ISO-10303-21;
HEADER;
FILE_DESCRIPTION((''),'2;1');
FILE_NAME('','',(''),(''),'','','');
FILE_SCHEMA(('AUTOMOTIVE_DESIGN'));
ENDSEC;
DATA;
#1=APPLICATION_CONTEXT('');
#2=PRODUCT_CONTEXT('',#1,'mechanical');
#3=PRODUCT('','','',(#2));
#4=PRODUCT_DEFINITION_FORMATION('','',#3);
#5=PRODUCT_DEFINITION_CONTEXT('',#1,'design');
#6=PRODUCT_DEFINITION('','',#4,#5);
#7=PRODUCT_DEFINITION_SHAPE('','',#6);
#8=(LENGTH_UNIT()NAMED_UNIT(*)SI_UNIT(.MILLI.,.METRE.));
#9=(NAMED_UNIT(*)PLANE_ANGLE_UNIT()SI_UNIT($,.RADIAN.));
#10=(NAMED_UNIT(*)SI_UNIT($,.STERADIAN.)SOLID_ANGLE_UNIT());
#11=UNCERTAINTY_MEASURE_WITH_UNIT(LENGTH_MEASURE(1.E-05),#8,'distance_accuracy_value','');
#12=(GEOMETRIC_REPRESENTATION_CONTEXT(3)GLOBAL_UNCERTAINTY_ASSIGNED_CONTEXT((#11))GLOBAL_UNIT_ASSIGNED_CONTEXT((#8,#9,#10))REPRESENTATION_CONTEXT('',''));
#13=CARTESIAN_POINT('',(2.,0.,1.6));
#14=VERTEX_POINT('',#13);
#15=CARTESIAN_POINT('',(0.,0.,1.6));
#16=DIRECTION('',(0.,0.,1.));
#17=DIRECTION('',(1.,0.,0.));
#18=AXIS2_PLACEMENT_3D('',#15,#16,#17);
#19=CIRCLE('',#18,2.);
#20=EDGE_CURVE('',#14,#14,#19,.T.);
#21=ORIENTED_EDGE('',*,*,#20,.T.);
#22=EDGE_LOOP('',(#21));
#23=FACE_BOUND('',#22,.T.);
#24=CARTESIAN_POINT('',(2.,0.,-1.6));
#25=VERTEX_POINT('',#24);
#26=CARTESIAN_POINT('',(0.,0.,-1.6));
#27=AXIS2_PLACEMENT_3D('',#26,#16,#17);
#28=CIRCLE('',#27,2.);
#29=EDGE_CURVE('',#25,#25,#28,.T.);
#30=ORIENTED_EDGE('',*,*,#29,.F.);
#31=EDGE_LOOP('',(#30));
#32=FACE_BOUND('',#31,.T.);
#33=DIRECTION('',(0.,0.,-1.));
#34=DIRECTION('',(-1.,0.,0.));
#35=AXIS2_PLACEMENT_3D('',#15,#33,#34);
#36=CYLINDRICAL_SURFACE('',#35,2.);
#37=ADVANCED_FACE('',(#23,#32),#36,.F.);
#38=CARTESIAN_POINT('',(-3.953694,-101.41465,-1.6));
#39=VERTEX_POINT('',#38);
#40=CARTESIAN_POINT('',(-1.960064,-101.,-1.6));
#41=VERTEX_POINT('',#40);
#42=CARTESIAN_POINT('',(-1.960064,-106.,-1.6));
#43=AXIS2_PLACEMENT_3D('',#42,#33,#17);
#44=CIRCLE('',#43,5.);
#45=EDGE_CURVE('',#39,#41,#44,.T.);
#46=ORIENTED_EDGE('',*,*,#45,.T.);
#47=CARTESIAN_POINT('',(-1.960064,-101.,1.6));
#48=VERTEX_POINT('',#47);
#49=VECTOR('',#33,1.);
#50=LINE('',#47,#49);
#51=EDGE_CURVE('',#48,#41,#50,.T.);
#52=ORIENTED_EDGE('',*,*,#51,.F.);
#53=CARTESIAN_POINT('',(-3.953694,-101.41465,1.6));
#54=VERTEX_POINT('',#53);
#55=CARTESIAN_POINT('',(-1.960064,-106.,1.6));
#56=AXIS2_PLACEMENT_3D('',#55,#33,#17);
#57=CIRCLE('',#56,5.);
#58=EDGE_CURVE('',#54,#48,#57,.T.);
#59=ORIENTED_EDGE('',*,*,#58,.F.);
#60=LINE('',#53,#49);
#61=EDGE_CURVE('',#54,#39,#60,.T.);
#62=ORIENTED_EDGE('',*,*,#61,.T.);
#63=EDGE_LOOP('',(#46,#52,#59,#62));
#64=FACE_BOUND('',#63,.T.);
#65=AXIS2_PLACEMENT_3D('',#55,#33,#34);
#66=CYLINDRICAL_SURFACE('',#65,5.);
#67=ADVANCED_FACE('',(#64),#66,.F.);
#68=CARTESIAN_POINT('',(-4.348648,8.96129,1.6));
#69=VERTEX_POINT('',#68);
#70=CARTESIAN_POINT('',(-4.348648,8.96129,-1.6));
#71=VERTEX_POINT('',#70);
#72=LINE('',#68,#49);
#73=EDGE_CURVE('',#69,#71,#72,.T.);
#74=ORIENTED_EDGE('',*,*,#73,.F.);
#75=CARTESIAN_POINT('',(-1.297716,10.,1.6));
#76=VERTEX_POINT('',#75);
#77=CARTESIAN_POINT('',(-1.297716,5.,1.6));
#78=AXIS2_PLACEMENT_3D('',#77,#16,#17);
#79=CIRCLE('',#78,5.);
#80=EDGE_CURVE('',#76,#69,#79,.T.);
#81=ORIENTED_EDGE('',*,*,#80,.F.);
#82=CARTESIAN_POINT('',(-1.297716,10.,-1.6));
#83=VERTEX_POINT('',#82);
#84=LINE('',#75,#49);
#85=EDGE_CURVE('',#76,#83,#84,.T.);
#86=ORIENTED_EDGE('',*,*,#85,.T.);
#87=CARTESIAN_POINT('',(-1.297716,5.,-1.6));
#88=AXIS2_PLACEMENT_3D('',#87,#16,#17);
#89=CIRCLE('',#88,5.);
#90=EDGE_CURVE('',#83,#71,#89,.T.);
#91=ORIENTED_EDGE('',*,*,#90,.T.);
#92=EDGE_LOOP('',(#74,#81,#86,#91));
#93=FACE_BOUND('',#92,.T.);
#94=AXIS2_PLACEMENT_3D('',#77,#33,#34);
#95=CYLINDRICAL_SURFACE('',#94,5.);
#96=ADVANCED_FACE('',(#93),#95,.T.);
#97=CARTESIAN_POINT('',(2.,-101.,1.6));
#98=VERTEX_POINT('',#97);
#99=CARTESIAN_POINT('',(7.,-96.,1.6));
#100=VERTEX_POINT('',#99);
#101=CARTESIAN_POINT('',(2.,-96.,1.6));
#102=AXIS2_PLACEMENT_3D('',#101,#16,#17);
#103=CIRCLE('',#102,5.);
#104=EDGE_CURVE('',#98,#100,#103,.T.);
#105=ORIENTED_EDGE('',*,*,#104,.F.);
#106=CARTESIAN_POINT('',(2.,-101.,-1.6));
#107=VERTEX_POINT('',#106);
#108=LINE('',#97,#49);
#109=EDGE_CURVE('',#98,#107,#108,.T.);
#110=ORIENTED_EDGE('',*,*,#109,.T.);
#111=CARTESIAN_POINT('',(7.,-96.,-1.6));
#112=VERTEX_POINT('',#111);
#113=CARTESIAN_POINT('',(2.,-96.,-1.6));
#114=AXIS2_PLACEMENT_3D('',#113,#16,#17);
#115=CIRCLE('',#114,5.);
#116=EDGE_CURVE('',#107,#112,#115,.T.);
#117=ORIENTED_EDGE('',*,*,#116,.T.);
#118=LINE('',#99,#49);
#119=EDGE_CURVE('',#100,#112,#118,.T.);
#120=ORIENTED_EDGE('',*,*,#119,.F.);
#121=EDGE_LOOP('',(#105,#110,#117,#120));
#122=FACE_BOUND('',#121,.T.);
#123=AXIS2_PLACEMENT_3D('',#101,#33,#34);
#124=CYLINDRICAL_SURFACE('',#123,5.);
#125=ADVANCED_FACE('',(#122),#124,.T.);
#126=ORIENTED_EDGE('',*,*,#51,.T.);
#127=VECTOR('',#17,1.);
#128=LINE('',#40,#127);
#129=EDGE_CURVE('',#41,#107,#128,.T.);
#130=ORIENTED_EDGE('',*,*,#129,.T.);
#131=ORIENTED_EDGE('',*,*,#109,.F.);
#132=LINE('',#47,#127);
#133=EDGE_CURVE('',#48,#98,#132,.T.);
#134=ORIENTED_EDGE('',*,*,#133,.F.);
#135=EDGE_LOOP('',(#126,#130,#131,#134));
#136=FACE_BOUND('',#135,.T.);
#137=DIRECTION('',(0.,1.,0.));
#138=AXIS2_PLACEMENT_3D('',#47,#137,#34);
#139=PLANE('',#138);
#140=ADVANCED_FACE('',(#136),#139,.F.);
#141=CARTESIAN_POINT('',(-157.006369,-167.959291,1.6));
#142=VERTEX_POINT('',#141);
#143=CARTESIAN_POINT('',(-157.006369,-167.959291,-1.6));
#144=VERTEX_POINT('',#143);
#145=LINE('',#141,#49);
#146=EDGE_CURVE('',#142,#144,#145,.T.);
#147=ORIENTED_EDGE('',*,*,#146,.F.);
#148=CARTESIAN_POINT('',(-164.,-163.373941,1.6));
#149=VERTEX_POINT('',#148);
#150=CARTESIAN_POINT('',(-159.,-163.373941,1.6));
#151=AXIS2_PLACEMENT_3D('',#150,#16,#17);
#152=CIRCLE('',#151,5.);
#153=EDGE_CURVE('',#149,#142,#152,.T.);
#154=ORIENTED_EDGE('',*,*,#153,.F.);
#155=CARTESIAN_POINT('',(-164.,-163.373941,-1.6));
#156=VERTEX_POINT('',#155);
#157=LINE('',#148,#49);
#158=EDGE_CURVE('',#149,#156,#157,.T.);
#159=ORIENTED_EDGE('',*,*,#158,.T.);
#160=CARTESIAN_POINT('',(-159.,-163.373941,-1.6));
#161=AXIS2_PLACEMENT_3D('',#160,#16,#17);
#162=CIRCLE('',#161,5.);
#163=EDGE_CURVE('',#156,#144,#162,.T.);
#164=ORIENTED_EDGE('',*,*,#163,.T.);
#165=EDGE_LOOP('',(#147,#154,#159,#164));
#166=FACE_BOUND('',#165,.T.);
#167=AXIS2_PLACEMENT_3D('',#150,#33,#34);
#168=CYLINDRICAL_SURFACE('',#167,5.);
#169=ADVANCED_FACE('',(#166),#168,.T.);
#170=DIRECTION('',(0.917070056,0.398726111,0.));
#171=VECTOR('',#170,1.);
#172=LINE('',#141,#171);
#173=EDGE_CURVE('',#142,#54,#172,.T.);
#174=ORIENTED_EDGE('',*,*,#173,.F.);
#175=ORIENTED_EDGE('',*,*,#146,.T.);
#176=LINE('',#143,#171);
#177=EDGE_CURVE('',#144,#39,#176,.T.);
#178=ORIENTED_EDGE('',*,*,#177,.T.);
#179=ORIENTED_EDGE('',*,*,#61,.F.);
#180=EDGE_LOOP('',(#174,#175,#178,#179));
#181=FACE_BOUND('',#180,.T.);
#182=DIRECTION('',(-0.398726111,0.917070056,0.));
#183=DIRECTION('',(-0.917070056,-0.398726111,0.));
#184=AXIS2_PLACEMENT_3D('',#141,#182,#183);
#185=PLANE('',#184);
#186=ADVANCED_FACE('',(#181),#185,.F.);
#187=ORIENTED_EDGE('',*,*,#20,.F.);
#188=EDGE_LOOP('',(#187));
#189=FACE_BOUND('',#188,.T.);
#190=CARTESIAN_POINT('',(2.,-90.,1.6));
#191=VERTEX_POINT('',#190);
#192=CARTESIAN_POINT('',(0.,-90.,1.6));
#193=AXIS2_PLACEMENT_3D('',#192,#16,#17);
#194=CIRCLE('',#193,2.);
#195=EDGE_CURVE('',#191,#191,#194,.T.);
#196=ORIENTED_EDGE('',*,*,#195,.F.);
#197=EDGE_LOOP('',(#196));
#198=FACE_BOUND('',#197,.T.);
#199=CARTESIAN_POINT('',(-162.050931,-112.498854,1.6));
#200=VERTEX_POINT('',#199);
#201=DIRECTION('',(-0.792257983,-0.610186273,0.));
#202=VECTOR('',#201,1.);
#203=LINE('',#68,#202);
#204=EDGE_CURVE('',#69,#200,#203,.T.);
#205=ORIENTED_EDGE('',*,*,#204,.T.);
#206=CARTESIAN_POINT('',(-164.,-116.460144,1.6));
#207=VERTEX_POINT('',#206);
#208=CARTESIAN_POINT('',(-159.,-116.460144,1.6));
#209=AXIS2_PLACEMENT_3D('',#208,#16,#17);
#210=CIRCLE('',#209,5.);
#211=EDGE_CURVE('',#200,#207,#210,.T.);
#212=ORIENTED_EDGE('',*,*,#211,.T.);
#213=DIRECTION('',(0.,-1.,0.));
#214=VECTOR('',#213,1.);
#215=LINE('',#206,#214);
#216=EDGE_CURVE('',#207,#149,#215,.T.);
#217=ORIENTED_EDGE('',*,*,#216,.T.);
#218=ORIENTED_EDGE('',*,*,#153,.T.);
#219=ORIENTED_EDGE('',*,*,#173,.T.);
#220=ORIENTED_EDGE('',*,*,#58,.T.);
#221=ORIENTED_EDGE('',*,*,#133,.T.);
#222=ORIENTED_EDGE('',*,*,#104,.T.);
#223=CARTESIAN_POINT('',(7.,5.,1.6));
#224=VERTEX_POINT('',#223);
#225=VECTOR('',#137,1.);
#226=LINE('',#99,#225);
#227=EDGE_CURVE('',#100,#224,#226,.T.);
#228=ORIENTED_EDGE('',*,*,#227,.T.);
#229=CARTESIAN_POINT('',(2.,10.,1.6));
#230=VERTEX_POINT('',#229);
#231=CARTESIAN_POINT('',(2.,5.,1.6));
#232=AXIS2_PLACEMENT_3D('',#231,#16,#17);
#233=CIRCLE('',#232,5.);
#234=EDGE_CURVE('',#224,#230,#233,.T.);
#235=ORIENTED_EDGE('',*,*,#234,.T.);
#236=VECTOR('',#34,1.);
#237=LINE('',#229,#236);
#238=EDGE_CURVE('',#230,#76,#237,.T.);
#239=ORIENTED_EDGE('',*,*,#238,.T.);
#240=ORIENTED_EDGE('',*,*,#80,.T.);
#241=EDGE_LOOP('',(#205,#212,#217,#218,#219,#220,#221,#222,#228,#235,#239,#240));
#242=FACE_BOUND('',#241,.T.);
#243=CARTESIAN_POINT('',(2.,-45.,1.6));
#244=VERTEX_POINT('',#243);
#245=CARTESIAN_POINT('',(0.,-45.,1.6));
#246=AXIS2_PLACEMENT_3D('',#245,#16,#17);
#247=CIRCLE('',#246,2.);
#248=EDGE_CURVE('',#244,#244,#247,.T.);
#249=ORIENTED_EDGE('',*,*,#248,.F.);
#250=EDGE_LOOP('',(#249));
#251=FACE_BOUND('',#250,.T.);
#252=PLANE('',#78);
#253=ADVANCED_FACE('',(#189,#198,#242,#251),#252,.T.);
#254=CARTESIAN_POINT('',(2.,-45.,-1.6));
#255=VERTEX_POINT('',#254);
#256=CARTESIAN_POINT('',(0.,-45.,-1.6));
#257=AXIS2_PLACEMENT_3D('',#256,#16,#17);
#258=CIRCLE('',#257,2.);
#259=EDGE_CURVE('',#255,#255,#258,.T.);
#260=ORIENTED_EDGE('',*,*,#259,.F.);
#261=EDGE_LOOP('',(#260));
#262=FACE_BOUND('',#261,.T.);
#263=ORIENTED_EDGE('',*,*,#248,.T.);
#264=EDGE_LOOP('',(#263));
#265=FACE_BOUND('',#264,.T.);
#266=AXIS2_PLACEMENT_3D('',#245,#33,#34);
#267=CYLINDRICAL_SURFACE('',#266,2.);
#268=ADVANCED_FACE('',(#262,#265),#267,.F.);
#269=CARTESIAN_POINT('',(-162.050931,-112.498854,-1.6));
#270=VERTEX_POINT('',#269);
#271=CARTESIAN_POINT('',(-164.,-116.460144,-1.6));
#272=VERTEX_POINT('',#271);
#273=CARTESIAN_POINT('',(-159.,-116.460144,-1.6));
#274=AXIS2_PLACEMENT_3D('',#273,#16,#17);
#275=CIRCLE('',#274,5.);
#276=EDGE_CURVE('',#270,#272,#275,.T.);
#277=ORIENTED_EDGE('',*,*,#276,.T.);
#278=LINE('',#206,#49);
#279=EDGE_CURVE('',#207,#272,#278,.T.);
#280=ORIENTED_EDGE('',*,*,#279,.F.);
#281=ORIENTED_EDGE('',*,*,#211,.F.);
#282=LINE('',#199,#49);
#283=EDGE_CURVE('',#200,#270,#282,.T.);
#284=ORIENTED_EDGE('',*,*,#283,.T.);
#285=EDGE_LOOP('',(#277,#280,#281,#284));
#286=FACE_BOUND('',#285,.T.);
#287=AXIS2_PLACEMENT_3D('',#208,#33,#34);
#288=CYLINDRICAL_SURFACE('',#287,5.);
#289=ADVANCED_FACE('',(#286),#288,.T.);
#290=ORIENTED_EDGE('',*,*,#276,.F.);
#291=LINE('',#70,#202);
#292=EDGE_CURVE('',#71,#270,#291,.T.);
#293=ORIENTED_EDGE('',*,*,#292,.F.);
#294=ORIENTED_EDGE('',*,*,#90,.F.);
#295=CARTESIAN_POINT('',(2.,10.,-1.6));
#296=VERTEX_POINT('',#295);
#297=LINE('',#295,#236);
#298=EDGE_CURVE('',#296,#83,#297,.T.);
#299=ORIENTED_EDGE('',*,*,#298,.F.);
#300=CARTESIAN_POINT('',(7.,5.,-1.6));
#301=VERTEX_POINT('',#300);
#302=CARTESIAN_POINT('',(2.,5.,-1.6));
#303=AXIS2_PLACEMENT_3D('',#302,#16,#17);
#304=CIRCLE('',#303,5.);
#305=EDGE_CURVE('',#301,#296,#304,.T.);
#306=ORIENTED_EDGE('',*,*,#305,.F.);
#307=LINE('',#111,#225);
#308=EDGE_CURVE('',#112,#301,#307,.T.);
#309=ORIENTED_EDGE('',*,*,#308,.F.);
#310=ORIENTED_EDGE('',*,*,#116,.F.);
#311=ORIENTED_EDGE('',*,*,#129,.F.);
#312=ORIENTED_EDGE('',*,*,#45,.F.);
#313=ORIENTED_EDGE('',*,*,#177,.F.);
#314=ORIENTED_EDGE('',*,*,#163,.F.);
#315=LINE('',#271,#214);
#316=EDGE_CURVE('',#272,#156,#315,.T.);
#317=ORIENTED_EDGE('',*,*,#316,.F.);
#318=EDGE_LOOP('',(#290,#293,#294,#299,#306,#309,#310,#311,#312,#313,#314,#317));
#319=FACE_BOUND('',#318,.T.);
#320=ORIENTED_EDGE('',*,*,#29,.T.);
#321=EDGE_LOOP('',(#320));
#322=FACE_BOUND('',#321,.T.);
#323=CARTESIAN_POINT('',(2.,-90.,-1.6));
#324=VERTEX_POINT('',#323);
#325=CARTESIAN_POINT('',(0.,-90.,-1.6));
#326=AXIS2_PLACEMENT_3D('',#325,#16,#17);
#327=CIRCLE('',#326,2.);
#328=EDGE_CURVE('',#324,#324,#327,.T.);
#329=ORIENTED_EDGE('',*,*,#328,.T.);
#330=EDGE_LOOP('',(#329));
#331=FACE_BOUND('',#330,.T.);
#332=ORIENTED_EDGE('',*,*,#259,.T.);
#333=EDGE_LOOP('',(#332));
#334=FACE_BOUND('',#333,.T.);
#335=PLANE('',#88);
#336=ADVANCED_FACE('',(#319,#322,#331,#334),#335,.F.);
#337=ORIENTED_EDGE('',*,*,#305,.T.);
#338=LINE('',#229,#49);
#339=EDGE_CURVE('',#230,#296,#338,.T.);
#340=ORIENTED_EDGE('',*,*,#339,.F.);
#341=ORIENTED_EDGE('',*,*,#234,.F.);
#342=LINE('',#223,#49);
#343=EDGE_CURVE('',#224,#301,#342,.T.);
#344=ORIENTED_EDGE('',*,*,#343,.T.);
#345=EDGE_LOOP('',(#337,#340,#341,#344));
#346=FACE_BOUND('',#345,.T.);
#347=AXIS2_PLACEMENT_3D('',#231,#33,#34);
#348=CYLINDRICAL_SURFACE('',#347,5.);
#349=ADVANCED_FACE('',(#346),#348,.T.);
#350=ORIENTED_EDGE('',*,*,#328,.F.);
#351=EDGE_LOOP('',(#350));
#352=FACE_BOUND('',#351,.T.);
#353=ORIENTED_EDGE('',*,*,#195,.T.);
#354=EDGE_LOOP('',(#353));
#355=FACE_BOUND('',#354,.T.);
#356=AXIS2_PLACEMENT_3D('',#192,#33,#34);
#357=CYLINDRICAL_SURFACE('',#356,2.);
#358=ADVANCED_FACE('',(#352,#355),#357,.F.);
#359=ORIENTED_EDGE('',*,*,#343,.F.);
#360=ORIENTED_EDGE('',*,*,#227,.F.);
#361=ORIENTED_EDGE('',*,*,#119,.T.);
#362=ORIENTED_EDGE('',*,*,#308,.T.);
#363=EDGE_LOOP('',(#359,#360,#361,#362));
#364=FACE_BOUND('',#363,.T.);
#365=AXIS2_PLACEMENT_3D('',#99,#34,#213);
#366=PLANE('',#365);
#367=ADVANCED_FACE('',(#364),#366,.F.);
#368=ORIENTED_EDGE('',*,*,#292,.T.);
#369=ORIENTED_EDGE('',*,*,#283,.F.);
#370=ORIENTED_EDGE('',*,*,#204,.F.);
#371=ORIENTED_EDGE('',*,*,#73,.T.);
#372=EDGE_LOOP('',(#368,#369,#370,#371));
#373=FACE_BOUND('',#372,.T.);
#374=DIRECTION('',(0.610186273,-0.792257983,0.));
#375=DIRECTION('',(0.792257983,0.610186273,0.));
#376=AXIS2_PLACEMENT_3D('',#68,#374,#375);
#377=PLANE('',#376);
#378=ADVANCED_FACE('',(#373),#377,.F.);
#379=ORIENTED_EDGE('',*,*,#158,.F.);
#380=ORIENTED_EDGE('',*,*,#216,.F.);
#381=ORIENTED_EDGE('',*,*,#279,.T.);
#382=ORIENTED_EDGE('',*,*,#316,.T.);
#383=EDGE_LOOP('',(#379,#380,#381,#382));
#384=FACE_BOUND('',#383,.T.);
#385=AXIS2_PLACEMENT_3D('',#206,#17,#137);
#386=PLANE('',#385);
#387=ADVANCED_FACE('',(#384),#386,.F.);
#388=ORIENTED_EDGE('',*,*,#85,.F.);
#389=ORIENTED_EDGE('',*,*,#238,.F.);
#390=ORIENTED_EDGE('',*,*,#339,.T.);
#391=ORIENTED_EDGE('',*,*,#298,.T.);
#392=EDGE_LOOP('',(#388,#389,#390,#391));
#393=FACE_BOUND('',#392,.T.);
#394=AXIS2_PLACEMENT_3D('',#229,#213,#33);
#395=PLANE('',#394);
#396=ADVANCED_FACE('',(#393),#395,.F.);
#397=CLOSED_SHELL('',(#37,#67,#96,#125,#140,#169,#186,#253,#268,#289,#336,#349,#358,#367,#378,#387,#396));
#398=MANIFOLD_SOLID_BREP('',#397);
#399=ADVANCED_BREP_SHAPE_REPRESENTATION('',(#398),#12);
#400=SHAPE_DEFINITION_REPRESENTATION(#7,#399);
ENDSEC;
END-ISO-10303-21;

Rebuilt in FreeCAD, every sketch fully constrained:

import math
import FreeCAD as App
import Part
import Sketcher
from FreeCAD import Vector

doc = App.newDocument("Part")
params = doc.addObject("Spreadsheet::Sheet", "Params")
for row, (alias, value) in enumerate([
    ("sketch1_diameter", "4 mm"),
    ("sketch1_radius", "5 mm"),
    ("sketch1_height", "101 mm"),
    ("pad1_length", "1.6 mm"),
    ("pad1_length2", "1.6 mm"),
], start=1):
    params.set(f"A{row}", alias)
    params.set(f"B{row}", "=" + value)
    params.setAlias(f"B{row}", alias)

body = doc.addObject("PartDesign::Body", "Body")

# Sketch on XY plane
sketch1 = body.newObject("Sketcher::SketchObject", "Sketch")
sketch1.AttachmentSupport = (doc.getObject("XY_Plane"), [""])
sketch1.MapMode = "FlatFace"
sketch1.addGeometry([
    Part.LineSegment(Vector(-4.3, 9, 0), Vector(-162.1, -112.5, 0)),  # 0
    Part.ArcOfCircle(Part.Circle(Vector(-159, -116.5, 0), Vector(0, 0, 1), 5), math.radians(128), math.radians(180)),  # 1
    Part.LineSegment(Vector(-164, -116.5, 0), Vector(-164, -163.4, 0)),  # 2
    Part.ArcOfCircle(Part.Circle(Vector(-159, -163.4, 0), Vector(0, 0, 1), 5), math.radians(180), math.radians(293)),  # 3
    Part.LineSegment(Vector(-157, -168, 0), Vector(-4, -101.4, 0)),  # 4
    Part.ArcOfCircle(Part.Circle(Vector(-2, -106, 0), Vector(0, 0, 1), 5), math.radians(90), math.radians(113)),  # 5
    Part.LineSegment(Vector(-2, -101, 0), Vector(2, -101, 0)),  # 6
    Part.ArcOfCircle(Part.Circle(Vector(2, -96, 0), Vector(0, 0, 1), 5), math.radians(-90), math.radians(-53)),  # 7
    Part.ArcOfCircle(Part.Circle(Vector(2, -96, 0), Vector(0, 0, 1), 5), math.radians(-53), math.radians(0)),  # 8
    Part.LineSegment(Vector(7, -96, 0), Vector(7, 5, 0)),  # 9
    Part.ArcOfCircle(Part.Circle(Vector(2, 5, 0), Vector(0, 0, 1), 5), math.radians(0), math.radians(90)),  # 10
    Part.LineSegment(Vector(2, 10, 0), Vector(-1.3, 10, 0)),  # 11
    Part.ArcOfCircle(Part.Circle(Vector(-1.3, 5, 0), Vector(0, 0, 1), 5), math.radians(90), math.radians(128)),  # 12
    Part.Circle(Vector(0, -90, 0), Vector(0, 0, 1), 2),  # 13
    Part.Circle(Vector(0, -45, 0), Vector(0, 0, 1), 2),  # 14
    Part.Circle(Vector(0, 0, 0), Vector(0, 0, 1), 2),  # 15
], False)
sketch1.addConstraint([
    Sketcher.Constraint("Tangent", 0, 2, 1, 1),
    Sketcher.Constraint("Tangent", 1, 2, 2, 1),
    Sketcher.Constraint("Tangent", 2, 2, 3, 1),
    Sketcher.Constraint("Tangent", 3, 2, 4, 1),
    Sketcher.Constraint("Tangent", 4, 2, 5, 2),
    Sketcher.Constraint("Tangent", 5, 1, 6, 1),
    Sketcher.Constraint("Tangent", 6, 2, 7, 1),
    Sketcher.Constraint("Tangent", 7, 2, 8, 1),
    Sketcher.Constraint("Tangent", 8, 2, 9, 1),
    Sketcher.Constraint("Tangent", 9, 2, 10, 1),
    Sketcher.Constraint("Tangent", 10, 2, 11, 1),
    Sketcher.Constraint("Tangent", 11, 2, 12, 1),
    Sketcher.Constraint("Tangent", 12, 2, 0, 1),
    Sketcher.Constraint("Vertical", 2),
    Sketcher.Constraint("Horizontal", 6),
    Sketcher.Constraint("Vertical", 9),
    Sketcher.Constraint("Horizontal", 11),
    Sketcher.Constraint("Coincident", 15, 3, -1, 1),
    Sketcher.Constraint("Equal", 1, 3),
    Sketcher.Constraint("Equal", 3, 5),
    Sketcher.Constraint("Equal", 5, 7),
    Sketcher.Constraint("Equal", 7, 8),
    Sketcher.Constraint("Equal", 8, 10),
    Sketcher.Constraint("Equal", 10, 12),
    Sketcher.Constraint("Equal", 13, 14),
    Sketcher.Constraint("Equal", 14, 15),
    Sketcher.Constraint("PointOnObject", 13, 3, -2),
    Sketcher.Constraint("PointOnObject", 14, 3, -2),
    Sketcher.Constraint("Diameter", 13, 4.0),
    Sketcher.Constraint("Radius", 1, 5.0),
    Sketcher.Constraint("DistanceY", 9, 1, 9, 2, 101.0),
    Sketcher.Constraint("DistanceX", 1, 3, -1, 1, 159.0),
    Sketcher.Constraint("DistanceY", 5, 3, -1, 1, 106.0),
    Sketcher.Constraint("DistanceX", -1, 1, 7, 3, 2.0),
    Sketcher.Constraint("DistanceY", 13, 3, -1, 1, 90.0),
    Sketcher.Constraint("DistanceY", 14, 3, -1, 1, 45.0),
    Sketcher.Constraint("Distance", 4, 166.893111),
    Sketcher.Constraint("DistanceX", 6, 1, 6, 2, 3.960064),
    Sketcher.Constraint("DistanceX", 11, 2, 11, 1, 3.297716),
    Sketcher.Constraint("DistanceY", 2, 2, 2, 1, 46.913797),
    Sketcher.Constraint("DistanceX", 5, 1, 7, 2, 6.969139),
])
sketch1.setExpression("Constraints[28]", "Params.sketch1_diameter")
sketch1.setExpression("Constraints[29]", "Params.sketch1_radius")
sketch1.setExpression("Constraints[30]", "Params.sketch1_height")
pad1 = body.newObject("PartDesign::Pad", "Pad")
pad1.Profile = sketch1
pad1.Type = "TwoLengths"
pad1.setExpression("Length", "Params.pad1_length")
pad1.setExpression("Length2", "Params.pad1_length2")

doc.recompute()
